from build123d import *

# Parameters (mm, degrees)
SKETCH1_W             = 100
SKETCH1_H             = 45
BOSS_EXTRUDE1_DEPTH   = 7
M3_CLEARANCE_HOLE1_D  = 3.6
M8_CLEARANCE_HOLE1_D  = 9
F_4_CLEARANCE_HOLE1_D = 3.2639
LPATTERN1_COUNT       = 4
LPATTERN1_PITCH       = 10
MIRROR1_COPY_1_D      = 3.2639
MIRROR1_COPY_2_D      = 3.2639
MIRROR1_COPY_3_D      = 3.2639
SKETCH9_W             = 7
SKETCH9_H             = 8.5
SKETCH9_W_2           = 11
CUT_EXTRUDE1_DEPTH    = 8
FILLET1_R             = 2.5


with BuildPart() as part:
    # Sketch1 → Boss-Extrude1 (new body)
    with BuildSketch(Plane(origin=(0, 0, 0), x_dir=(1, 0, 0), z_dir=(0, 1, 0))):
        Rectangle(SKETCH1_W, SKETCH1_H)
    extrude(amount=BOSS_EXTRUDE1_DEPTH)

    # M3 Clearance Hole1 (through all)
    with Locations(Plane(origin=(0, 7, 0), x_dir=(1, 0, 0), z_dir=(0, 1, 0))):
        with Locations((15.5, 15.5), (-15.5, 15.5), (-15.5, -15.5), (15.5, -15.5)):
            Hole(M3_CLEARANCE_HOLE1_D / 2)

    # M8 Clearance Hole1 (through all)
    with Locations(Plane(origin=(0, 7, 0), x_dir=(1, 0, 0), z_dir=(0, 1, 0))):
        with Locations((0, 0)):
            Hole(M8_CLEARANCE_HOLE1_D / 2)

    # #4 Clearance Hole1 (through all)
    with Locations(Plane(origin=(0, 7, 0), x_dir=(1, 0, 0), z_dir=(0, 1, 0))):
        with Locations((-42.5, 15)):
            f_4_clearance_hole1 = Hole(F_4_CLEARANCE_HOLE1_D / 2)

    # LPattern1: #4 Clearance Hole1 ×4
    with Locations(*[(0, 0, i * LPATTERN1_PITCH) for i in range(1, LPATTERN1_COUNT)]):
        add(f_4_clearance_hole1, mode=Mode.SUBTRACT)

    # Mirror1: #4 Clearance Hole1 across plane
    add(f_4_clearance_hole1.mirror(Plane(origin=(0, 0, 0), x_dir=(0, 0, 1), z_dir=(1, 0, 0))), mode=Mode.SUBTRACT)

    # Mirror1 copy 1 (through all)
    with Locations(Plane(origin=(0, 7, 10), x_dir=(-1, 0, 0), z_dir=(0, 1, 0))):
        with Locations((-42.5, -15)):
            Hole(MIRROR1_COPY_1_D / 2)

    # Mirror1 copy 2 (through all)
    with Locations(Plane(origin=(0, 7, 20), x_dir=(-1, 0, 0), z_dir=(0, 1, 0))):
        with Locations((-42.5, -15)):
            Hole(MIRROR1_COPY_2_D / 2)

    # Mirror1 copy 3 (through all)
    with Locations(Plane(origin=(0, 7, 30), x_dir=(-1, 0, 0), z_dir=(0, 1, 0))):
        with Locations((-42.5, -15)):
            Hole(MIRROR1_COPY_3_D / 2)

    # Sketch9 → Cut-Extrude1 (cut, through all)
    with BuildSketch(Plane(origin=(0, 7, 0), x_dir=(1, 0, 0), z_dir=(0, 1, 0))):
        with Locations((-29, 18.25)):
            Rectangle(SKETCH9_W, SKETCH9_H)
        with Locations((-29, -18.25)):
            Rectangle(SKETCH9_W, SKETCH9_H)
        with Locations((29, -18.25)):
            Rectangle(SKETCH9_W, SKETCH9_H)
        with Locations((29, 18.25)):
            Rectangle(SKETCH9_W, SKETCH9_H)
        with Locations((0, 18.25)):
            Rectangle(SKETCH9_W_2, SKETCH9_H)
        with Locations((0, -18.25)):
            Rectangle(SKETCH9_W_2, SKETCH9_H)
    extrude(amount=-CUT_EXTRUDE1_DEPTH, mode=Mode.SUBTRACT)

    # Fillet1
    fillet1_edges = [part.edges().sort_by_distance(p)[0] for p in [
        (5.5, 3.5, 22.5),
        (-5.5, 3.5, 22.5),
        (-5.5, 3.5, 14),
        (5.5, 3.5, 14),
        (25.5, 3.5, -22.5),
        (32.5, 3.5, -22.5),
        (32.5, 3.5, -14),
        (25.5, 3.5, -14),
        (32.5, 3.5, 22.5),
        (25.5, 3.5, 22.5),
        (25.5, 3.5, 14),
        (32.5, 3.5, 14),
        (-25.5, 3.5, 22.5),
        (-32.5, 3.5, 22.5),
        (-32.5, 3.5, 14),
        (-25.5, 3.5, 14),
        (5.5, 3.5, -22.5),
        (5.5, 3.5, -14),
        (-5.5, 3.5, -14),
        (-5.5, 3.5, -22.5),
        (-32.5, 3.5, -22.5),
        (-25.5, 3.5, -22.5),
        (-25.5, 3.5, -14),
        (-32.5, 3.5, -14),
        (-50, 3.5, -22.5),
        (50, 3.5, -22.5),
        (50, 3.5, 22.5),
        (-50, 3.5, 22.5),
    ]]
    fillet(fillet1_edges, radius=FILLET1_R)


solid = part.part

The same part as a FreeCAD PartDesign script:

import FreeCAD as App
import Part
import Sketcher

V = App.Vector


def edges_at(feature, points):
    """Names of the edges that pass closest to the given points."""
    edges = feature.Shape.Edges
    near = lambda p: min(range(len(edges)), key=lambda i: edges[i].distToShape(Part.Vertex(*p))[0])
    return sorted({f"Edge{near(p) + 1}" for p in points})


def add_polygon(sketch, points):
    """Adds a closed chain of lines whose ends are joined by coincident constraints."""
    first, n = sketch.GeometryCount, len(points)
    for a, b in zip(points, points[1:] + points[:1]):
        sketch.addGeometry(Part.LineSegment(App.Vector(*a, 0), App.Vector(*b, 0)), False)
    for i in range(n):
        sketch.addConstraint(Sketcher.Constraint("Coincident", first + i, 2, first + (i + 1) % n, 1))

doc = App.newDocument("Part")
body = doc.addObject("PartDesign::Body", "Body")

sketch1 = body.newObject("Sketcher::SketchObject", "Sketch")
sketch1.AttachmentSupport = (doc.getObject("XZ_Plane"), [""])
sketch1.MapMode = "FlatFace"
add_polygon(sketch1, [(-50, -22), (-50, 22), (50, 22), (50, -22)])
sketch1.addConstraint([
    Sketcher.Constraint("Vertical", 0),
    Sketcher.Constraint("Horizontal", 1),
    Sketcher.Constraint("Vertical", 2),
    Sketcher.Constraint("Horizontal", 3),
    Sketcher.Constraint("Symmetric", 0, 2, 2, 2, -1, 1),
    Sketcher.Constraint("DistanceX", 1, 1, 1, 2, 100.0),
    Sketcher.Constraint("DistanceY", 0, 1, 0, 2, 45.0),
])
pad1 = body.newObject("PartDesign::Pad", "Pad")
pad1.Profile = sketch1
pad1.Length = 7
pad1.Reversed = True

sketch2 = body.newObject("Sketcher::SketchObject", "Sketch001")
sketch2.AttachmentSupport = (doc.getObject("XZ_Plane"), [""])
sketch2.MapMode = "FlatFace"
sketch2.AttachmentOffset = App.Placement(V(0, 0, -7), App.Rotation())
sketch2.addGeometry([
    Part.Circle(V(15.5, -15.5, 0), V(0, 0, 1), 1.8),
    Part.Circle(V(-15.5, -15.5, 0), V(0, 0, 1), 1.8),
    Part.Circle(V(-15.5, 15.5, 0), V(0, 0, 1), 1.8),
    Part.Circle(V(15.5, 15.5, 0), V(0, 0, 1), 1.8),
], False)
sketch2.addConstraint([
    Sketcher.Constraint("Equal", 0, 1),
    Sketcher.Constraint("Equal", 1, 2),
    Sketcher.Constraint("Equal", 2, 3),
    Sketcher.Constraint("Symmetric", 0, 3, 2, 3, -1, 1),
    Sketcher.Constraint("Symmetric", 1, 3, 3, 3, -1, 1),
    Sketcher.Constraint("Symmetric", 0, 3, 1, 3, -2),
    Sketcher.Constraint("Diameter", 0, 3.6),
    Sketcher.Constraint("DistanceX", 1, 3, 0, 3, 31.0),
    Sketcher.Constraint("DistanceY", 1, 3, 2, 3, 31.0),
])
doc.recompute()
hole = body.newObject("PartDesign::Hole", "Hole")
hole.Profile = sketch2
hole.ThreadType = "None"
hole.Diameter = 3.6
hole.DepthType = "ThroughAll"
hole.Reversed = True

sketch3 = body.newObject("Sketcher::SketchObject", "Sketch002")
sketch3.AttachmentSupport = (doc.getObject("XZ_Plane"), [""])
sketch3.MapMode = "FlatFace"
sketch3.AttachmentOffset = App.Placement(V(0, 0, -7), App.Rotation())
sketch3.addGeometry(Part.Circle(V(0, 0, 0), V(0, 0, 1), 4.5), False)
sketch3.addConstraint([
    Sketcher.Constraint("Coincident", 0, 3, -1, 1),
    Sketcher.Constraint("Diameter", 0, 9.0),
])
doc.recompute()
hole2 = body.newObject("PartDesign::Hole", "Hole001")
hole2.Profile = sketch3
hole2.ThreadType = "None"
hole2.Diameter = 9
hole2.DepthType = "ThroughAll"
hole2.Reversed = True

sketch4 = body.newObject("Sketcher::SketchObject", "Sketch003")
sketch4.AttachmentSupport = (doc.getObject("XZ_Plane"), [""])
sketch4.MapMode = "FlatFace"
sketch4.AttachmentOffset = App.Placement(V(0, 0, -7), App.Rotation())
sketch4.addGeometry(Part.Circle(V(-42.5, -15, 0), V(0, 0, 1), 1.6), False)
sketch4.addConstraint([
    Sketcher.Constraint("DistanceY", 0, 3, -1, 1, 15.0),
    Sketcher.Constraint("Diameter", 0, 3.2639),
    Sketcher.Constraint("DistanceX", 0, 3, -1, 1, 42.5),
])
doc.recompute()
hole3 = body.newObject("PartDesign::Hole", "Hole002")
hole3.Profile = sketch4
hole3.ThreadType = "None"
hole3.Diameter = 3.2639
hole3.DepthType = "ThroughAll"
hole3.Reversed = True
doc.recompute()

linearpattern = body.newObject("PartDesign::LinearPattern", "LinearPattern")
linearpattern.Originals = [hole3]
linearpattern.Direction = (doc.getObject("Z_Axis"), [""])
linearpattern.Mode = "offset"
linearpattern.Offset = 10
linearpattern.Occurrences = 4
body.Tip = linearpattern
doc.recompute()

mirrored = body.newObject("PartDesign::Mirrored", "Mirrored")
mirrored.Originals = [hole3]
mirrored.MirrorPlane = (doc.getObject("YZ_Plane"), [""])
body.Tip = mirrored

sketch5 = body.newObject("Sketcher::SketchObject", "Sketch004")
sketch5.AttachmentSupport = (doc.getObject("XZ_Plane"), [""])
sketch5.MapMode = "FlatFace"
sketch5.AttachmentOffset = App.Placement(V(0, 0, -7), App.Rotation())
sketch5.addGeometry(Part.Circle(V(42.5, -5, 0), V(0, 0, 1), 1.6), False)
sketch5.addConstraint([
    Sketcher.Constraint("DistanceY", 0, 3, -1, 1, 5.0),
    Sketcher.Constraint("Diameter", 0, 3.2639),
    Sketcher.Constraint("DistanceX", -1, 1, 0, 3, 42.5),
])
doc.recompute()
hole4 = body.newObject("PartDesign::Hole", "Hole003")
hole4.Profile = sketch5
hole4.ThreadType = "None"
hole4.Diameter = 3.2639
hole4.DepthType = "ThroughAll"
hole4.Reversed = True

sketch6 = body.newObject("Sketcher::SketchObject", "Sketch005")
sketch6.AttachmentSupport = (doc.getObject("XZ_Plane"), [""])
sketch6.MapMode = "FlatFace"
sketch6.AttachmentOffset = App.Placement(V(0, 0, -7), App.Rotation())
sketch6.addGeometry(Part.Circle(V(42.5, 5, 0), V(0, 0, 1), 1.6), False)
sketch6.addConstraint([
    Sketcher.Constraint("DistanceY", -1, 1, 0, 3, 5.0),
    Sketcher.Constraint("Diameter", 0, 3.2639),
    Sketcher.Constraint("DistanceX", -1, 1, 0, 3, 42.5),
])
doc.recompute()
hole5 = body.newObject("PartDesign::Hole", "Hole004")
hole5.Profile = sketch6
hole5.ThreadType = "None"
hole5.Diameter = 3.2639
hole5.DepthType = "ThroughAll"
hole5.Reversed = True

sketch7 = body.newObject("Sketcher::SketchObject", "Sketch006")
sketch7.AttachmentSupport = (doc.getObject("XZ_Plane"), [""])
sketch7.MapMode = "FlatFace"
sketch7.AttachmentOffset = App.Placement(V(0, 0, -7), App.Rotation())
sketch7.addGeometry(Part.Circle(V(42.5, 15, 0), V(0, 0, 1), 1.6), False)
sketch7.addConstraint([
    Sketcher.Constraint("DistanceY", -1, 1, 0, 3, 15.0),
    Sketcher.Constraint("Diameter", 0, 3.2639),
    Sketcher.Constraint("DistanceX", -1, 1, 0, 3, 42.5),
])
doc.recompute()
hole6 = body.newObject("PartDesign::Hole", "Hole005")
hole6.Profile = sketch7
hole6.ThreadType = "None"
hole6.Diameter = 3.2639
hole6.DepthType = "ThroughAll"
hole6.Reversed = True

sketch8 = body.newObject("Sketcher::SketchObject", "Sketch007")
sketch8.AttachmentSupport = (doc.getObject("XZ_Plane"), [""])
sketch8.MapMode = "FlatFace"
sketch8.AttachmentOffset = App.Placement(V(0, 0, -7), App.Rotation())
add_polygon(sketch8, [(-32, -22), (-32, -14), (-26, -14), (-26, -22)])
add_polygon(sketch8, [(-32, 14), (-32, 22), (-26, 22), (-26, 14)])
add_polygon(sketch8, [(26, 14), (26, 22), (32, 22), (32, 14)])
add_polygon(sketch8, [(26, -22), (26, -14), (32, -14), (32, -22)])
add_polygon(sketch8, [(-6, -22), (-6, -14), (6, -14), (6, -22)])
add_polygon(sketch8, [(-6, 14), (-6, 22), (6, 22), (6, 14)])
sketch8.addConstraint([
    Sketcher.Constraint("Vertical", 0),
    Sketcher.Constraint("Horizontal", 1),
    Sketcher.Constraint("Vertical", 2),
    Sketcher.Constraint("Horizontal", 3),
    Sketcher.Constraint("Vertical", 4),
    Sketcher.Constraint("Horizontal", 5),
    Sketcher.Constraint("Vertical", 6),
    Sketcher.Constraint("Horizontal", 7),
    Sketcher.Constraint("Vertical", 8),
    Sketcher.Constraint("Horizontal", 9),
    Sketcher.Constraint("Vertical", 10),
    Sketcher.Constraint("Horizontal", 11),
    Sketcher.Constraint("Vertical", 12),
    Sketcher.Constraint("Horizontal", 13),
    Sketcher.Constraint("Vertical", 14),
    Sketcher.Constraint("Horizontal", 15),
    Sketcher.Constraint("Vertical", 16),
    Sketcher.Constraint("Horizontal", 17),
    Sketcher.Constraint("Vertical", 18),
    Sketcher.Constraint("Horizontal", 19),
    Sketcher.Constraint("Vertical", 20),
    Sketcher.Constraint("Horizontal", 21),
    Sketcher.Constraint("Vertical", 22),
    Sketcher.Constraint("Horizontal", 23),
    Sketcher.Constraint("Symmetric", 2, 2, 8, 2, -1, 1),
    Sketcher.Constraint("Symmetric", 0, 2, 10, 2, -1, 1),
    Sketcher.Constraint("Symmetric", 6, 2, 12, 2, -1, 1),
    Sketcher.Constraint("Symmetric", 4, 2, 14, 2, -1, 1),
    Sketcher.Constraint("Symmetric", 18, 2, 20, 2, -1, 1),
    Sketcher.Constraint("Symmetric", 16, 2, 22, 2, -1, 1),
    Sketcher.Constraint("Symmetric", 5, 2, 8, 2, -2),
    Sketcher.Constraint("Symmetric", 7, 2, 10, 2, -2),
    Sketcher.Constraint("Horizontal", 13, 2, 16, 2),
    Sketcher.Constraint("Horizontal", 15, 2, 18, 2),
    Sketcher.Constraint("Vertical", 19, 2, 20, 2),
    Sketcher.Constraint("DistanceX", 1, 1, 1, 2, 7.0),
    Sketcher.Constraint("DistanceX", 17, 1, 17, 2, 11.0),
    Sketcher.Constraint("DistanceY", 0, 1, 0, 2, 8.5),
    Sketcher.Constraint("DistanceY", 0, 2, -1, 1, 14.0),
    Sketcher.Constraint("DistanceX", 5, 2, 8, 2, 51.0),
])
pocket1 = body.newObject("PartDesign::Pocket", "Pocket")
pocket1.Profile = sketch8
pocket1.Type = "ThroughAll"
pocket1.Reversed = True
doc.recompute()

fillet = body.newObject("PartDesign::Fillet", "Fillet")
fillet.Base = (pocket1, edges_at(pocket1, [
    (5.5, 3.5, 22.5),
    (-5.5, 3.5, 22.5),
    (-5.5, 3.5, 14),
    (5.5, 3.5, 14),
    (25.5, 3.5, -22.5),
    (32.5, 3.5, -22.5),
    (32.5, 3.5, -14),
    (25.5, 3.5, -14),
    (32.5, 3.5, 22.5),
    (25.5, 3.5, 22.5),
    (25.5, 3.5, 14),
    (32.5, 3.5, 14),
    (-25.5, 3.5, 22.5),
    (-32.5, 3.5, 22.5),
    (-32.5, 3.5, 14),
    (-25.5, 3.5, 14),
    (5.5, 3.5, -22.5),
    (5.5, 3.5, -14),
    (-5.5, 3.5, -14),
    (-5.5, 3.5, -22.5),
    (-32.5, 3.5, -22.5),
    (-25.5, 3.5, -22.5),
    (-25.5, 3.5, -14),
    (-32.5, 3.5, -14),
    (-50, 3.5, -22.5),
    (50, 3.5, -22.5),
    (50, 3.5, 22.5),
    (-50, 3.5, 22.5),
]))
fillet.Radius = 2.5

doc.recompute()
